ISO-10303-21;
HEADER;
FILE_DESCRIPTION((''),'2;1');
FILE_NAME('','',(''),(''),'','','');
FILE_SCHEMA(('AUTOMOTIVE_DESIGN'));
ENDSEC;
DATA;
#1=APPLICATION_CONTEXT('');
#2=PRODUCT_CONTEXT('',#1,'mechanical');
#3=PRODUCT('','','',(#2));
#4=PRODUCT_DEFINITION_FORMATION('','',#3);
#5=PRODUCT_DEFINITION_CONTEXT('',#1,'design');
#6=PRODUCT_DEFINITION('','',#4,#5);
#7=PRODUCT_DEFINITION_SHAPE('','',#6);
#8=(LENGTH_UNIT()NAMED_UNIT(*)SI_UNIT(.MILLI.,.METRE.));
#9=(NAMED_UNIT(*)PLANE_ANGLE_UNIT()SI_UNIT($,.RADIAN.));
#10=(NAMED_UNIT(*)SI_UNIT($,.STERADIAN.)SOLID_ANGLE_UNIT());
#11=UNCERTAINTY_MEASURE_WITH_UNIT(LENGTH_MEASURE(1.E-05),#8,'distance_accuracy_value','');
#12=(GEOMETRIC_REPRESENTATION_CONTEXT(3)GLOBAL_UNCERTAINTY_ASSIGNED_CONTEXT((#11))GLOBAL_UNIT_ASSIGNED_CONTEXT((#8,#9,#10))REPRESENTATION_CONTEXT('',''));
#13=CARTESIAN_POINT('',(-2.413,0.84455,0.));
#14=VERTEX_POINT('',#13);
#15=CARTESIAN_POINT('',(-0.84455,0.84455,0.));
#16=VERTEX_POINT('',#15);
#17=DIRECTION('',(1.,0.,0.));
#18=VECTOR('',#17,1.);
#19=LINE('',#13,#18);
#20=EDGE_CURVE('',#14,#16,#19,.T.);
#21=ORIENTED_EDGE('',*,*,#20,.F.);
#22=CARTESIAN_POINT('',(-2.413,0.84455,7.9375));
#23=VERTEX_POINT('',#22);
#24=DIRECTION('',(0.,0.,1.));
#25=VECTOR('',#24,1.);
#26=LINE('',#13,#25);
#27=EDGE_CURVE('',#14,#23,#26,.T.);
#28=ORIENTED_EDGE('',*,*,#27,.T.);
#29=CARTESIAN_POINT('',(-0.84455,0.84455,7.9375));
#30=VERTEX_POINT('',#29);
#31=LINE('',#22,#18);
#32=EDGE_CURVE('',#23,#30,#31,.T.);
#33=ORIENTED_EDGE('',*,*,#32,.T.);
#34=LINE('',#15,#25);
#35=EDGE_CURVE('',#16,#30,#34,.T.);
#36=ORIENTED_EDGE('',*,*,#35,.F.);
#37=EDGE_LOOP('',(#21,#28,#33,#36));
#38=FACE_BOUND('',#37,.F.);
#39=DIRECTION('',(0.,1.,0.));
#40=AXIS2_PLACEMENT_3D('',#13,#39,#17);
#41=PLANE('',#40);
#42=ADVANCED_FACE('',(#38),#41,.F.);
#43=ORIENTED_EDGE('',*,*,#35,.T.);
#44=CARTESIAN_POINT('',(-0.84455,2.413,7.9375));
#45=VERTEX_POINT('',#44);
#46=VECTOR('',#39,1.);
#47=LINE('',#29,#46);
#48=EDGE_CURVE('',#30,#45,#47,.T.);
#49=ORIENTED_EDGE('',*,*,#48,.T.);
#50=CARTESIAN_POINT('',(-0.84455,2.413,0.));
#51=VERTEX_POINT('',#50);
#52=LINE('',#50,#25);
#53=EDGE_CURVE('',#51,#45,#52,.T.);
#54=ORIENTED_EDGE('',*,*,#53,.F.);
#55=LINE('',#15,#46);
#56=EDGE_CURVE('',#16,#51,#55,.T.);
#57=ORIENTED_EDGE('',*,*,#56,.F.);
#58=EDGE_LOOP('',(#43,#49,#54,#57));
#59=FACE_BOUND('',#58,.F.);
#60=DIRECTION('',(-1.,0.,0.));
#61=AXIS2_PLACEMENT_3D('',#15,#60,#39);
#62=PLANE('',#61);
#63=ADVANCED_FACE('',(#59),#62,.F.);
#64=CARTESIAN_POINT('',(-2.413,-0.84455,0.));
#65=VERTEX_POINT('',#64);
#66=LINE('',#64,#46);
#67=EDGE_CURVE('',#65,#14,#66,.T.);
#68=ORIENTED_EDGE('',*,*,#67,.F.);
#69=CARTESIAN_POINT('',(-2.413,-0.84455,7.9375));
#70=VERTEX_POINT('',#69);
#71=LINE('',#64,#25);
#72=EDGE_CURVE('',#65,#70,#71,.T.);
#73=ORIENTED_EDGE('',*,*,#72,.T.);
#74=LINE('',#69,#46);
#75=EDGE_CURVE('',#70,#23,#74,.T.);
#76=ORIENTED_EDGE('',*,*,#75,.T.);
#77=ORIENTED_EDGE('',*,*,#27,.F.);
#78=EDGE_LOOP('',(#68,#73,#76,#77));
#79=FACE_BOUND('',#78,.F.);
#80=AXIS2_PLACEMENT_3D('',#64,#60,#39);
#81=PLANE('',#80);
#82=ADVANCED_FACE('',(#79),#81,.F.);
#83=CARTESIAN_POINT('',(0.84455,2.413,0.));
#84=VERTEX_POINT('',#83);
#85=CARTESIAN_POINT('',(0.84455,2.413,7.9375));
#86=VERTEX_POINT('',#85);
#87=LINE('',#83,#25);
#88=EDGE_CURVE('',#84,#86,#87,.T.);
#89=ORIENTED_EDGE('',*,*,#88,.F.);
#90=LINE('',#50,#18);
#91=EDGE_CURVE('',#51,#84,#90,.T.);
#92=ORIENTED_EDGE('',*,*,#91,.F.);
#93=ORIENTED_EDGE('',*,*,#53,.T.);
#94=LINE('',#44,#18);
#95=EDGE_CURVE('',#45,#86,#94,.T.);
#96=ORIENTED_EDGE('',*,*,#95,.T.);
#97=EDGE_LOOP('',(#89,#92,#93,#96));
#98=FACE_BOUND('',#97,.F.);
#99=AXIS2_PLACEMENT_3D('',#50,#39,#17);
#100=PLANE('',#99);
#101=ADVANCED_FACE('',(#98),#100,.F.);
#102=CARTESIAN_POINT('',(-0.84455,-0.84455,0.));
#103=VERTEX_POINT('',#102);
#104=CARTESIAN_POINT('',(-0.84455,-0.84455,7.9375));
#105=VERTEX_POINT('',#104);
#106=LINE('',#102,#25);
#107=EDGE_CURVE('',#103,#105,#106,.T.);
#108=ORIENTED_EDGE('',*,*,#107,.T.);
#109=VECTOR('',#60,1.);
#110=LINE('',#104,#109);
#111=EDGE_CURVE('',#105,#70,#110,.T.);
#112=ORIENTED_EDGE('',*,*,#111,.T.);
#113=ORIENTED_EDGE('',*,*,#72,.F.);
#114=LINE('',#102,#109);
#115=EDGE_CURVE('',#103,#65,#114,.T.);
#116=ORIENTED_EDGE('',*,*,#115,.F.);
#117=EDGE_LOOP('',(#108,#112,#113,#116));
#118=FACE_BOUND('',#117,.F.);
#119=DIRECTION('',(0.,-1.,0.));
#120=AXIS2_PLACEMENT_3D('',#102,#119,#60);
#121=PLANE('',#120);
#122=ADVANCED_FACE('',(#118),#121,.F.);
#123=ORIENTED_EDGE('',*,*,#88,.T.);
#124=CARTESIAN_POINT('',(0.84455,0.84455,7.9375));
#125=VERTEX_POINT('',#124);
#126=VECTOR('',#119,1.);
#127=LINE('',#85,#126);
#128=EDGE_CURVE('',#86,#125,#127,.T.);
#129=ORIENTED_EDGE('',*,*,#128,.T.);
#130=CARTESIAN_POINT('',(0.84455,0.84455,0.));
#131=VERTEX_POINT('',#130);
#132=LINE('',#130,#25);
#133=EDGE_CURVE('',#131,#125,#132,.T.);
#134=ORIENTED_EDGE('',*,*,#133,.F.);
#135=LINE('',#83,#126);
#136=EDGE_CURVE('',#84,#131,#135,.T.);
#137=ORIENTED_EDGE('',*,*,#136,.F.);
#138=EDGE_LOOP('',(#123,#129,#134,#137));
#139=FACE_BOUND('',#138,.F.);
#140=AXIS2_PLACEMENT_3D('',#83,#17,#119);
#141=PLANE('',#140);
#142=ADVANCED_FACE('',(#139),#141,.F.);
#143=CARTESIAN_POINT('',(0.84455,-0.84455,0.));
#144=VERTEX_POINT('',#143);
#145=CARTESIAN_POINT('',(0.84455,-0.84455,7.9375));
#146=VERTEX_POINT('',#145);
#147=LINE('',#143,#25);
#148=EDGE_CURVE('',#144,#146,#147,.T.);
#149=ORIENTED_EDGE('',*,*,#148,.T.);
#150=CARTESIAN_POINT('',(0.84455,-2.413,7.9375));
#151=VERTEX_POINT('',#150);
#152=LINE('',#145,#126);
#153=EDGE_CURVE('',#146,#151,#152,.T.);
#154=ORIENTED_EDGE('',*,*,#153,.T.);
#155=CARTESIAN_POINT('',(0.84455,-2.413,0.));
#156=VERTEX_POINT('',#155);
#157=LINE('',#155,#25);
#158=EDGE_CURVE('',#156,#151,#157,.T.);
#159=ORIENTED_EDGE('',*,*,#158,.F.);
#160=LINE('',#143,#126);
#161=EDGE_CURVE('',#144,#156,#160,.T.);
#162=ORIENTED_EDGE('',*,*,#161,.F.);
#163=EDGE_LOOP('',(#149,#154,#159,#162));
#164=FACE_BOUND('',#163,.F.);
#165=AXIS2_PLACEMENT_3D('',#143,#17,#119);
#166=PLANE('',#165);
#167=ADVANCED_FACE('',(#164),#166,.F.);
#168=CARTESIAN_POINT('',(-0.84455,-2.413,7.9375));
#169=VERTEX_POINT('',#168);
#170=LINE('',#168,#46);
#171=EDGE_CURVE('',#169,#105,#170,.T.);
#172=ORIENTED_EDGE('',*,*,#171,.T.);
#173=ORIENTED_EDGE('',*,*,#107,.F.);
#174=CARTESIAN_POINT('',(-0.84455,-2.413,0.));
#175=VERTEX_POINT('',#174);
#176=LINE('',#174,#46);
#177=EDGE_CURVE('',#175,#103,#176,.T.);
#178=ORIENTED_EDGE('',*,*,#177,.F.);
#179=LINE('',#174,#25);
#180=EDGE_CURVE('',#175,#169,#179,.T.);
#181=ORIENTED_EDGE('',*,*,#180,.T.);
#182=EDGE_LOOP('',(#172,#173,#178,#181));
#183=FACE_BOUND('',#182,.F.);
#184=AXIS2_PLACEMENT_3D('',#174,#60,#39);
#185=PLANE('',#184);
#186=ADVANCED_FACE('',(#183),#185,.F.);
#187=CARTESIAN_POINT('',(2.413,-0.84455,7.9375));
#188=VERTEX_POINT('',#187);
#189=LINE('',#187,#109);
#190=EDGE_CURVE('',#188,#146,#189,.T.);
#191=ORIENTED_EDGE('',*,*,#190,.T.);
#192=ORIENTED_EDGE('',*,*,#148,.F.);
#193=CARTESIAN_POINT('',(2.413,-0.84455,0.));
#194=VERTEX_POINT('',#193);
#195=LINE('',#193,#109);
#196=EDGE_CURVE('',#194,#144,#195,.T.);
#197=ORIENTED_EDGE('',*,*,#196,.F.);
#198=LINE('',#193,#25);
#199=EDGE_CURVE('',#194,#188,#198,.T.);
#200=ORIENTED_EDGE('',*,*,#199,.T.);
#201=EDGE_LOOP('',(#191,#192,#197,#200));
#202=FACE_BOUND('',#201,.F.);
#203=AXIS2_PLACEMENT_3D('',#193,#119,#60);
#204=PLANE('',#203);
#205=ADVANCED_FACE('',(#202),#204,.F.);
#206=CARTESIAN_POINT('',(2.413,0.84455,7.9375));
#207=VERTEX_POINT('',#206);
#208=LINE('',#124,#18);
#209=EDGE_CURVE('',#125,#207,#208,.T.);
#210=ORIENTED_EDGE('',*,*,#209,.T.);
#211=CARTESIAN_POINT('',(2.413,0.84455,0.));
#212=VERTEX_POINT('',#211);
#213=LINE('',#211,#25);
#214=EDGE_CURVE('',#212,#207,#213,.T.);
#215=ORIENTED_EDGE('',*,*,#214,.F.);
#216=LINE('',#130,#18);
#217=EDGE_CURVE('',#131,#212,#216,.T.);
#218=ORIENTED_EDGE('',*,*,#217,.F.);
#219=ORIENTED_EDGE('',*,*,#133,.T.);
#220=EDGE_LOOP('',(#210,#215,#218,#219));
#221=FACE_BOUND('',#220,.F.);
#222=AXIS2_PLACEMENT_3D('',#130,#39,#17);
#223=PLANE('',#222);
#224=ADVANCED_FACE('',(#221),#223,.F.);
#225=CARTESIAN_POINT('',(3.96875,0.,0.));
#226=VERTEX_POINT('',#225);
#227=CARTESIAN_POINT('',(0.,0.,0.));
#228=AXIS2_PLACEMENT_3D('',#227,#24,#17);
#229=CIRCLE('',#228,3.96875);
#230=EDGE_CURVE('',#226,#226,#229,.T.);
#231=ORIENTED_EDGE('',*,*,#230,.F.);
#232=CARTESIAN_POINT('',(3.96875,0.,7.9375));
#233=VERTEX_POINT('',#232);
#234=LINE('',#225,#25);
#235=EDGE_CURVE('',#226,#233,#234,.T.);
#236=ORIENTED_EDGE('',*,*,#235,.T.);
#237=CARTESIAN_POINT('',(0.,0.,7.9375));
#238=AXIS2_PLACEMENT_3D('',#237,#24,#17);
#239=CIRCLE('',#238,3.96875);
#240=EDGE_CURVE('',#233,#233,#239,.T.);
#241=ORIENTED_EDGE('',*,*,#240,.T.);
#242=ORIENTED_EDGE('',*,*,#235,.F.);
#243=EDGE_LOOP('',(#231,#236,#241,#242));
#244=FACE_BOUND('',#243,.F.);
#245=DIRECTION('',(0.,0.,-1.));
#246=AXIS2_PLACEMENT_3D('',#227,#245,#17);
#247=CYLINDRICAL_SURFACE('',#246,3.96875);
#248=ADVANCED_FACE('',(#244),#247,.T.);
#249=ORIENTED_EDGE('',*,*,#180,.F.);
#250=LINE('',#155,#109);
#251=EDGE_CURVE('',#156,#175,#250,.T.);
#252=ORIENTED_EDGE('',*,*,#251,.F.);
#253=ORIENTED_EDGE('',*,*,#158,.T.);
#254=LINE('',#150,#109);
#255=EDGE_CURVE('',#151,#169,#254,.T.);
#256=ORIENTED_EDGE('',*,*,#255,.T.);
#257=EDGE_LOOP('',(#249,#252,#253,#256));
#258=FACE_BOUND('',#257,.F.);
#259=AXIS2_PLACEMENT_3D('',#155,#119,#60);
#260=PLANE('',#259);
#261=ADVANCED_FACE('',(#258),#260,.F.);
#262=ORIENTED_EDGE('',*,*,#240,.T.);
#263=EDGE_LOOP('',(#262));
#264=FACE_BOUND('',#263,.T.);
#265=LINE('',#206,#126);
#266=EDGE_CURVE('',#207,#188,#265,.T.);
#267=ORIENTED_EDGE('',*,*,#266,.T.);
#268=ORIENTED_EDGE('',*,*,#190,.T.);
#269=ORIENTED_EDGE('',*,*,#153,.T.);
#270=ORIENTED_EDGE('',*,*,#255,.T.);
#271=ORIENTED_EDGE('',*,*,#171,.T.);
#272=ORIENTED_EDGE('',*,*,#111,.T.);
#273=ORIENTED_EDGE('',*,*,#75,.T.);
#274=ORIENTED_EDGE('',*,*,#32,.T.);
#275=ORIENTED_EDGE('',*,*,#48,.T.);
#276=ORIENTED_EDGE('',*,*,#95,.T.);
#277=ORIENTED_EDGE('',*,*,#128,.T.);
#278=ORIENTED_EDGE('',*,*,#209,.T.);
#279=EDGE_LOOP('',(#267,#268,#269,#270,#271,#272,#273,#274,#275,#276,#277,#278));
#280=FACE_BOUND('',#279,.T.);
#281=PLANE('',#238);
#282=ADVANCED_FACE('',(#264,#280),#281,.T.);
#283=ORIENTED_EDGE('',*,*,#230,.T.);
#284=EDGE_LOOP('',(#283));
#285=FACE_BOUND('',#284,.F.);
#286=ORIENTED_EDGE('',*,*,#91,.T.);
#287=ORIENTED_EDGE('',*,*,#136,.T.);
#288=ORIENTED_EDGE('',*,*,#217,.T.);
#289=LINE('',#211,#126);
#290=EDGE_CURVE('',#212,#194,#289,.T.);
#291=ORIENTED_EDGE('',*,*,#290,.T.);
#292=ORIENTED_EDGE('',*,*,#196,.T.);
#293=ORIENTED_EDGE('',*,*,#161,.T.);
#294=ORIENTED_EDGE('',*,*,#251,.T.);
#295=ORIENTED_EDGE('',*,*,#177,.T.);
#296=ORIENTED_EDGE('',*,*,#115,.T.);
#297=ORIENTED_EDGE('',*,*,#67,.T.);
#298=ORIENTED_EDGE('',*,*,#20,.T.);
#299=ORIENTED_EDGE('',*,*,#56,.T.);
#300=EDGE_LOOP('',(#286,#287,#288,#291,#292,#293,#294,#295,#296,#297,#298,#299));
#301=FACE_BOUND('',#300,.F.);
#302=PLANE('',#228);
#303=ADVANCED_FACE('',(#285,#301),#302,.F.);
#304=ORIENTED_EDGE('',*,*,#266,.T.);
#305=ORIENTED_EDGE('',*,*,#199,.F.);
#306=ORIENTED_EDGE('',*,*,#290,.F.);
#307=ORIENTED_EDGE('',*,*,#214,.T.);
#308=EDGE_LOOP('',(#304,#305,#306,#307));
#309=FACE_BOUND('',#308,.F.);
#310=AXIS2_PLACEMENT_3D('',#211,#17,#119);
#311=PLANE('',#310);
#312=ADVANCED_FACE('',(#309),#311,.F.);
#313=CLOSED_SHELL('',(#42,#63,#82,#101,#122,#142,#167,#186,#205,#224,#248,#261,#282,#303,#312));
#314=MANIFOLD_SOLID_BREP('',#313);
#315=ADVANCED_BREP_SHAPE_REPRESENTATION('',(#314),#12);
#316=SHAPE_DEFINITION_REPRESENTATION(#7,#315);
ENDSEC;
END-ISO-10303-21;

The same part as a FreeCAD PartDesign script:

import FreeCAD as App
import Part
import Sketcher
Q = App.Units.Quantity


def add_polygon(sketch, points):
    """Adds a closed chain of lines whose ends are joined by coincident constraints."""
    first, n = sketch.GeometryCount, len(points)
    for a, b in zip(points, points[1:] + points[:1]):
        sketch.addGeometry(Part.LineSegment(App.Vector(*a, 0), App.Vector(*b, 0)), False)
    for i in range(n):
        sketch.addConstraint(Sketcher.Constraint("Coincident", first + i, 2, first + (i + 1) % n, 1))

doc = App.newDocument("Part")
body = doc.addObject("PartDesign::Body", "Body")

sketch1 = doc.addObject("Sketcher::SketchObject", "Sketch")
body.addObject(sketch1)
sketch1.AttachmentSupport = (doc.XY_Plane, [""])
sketch1.MapMode = "FlatFace"
sketch1.addGeometry(Part.Circle(App.Vector(0, 0, 0), App.Vector(0, 0, 1), 3.96875), False)
add_polygon(sketch1, [(0.84455, 2.413), (0.84455, 0.84455), (2.413, 0.84455), (2.413, -0.84455), (0.84455, -0.84455), (0.84455, -2.413), (-0.84455, -2.413), (-0.84455, -0.84455), (-2.413, -0.84455), (-2.413, 0.84455), (-0.84455, 0.84455), (-0.84455, 2.413)])
sketch1.addConstraint([
    Sketcher.Constraint("Vertical", 1),
    Sketcher.Constraint("Horizontal", 2),
    Sketcher.Constraint("Vertical", 3),
    Sketcher.Constraint("Horizontal", 4),
    Sketcher.Constraint("Vertical", 5),
    Sketcher.Constraint("Horizontal", 6),
    Sketcher.Constraint("Vertical", 7),
    Sketcher.Constraint("Horizontal", 8),
    Sketcher.Constraint("Vertical", 9),
    Sketcher.Constraint("Horizontal", 10),
    Sketcher.Constraint("Vertical", 11),
    Sketcher.Constraint("Horizontal", 12),
    Sketcher.Constraint("Coincident", 0, 3, -1, 1),
    Sketcher.Constraint("Symmetric", 1, 2, 7, 2, -1, 1),
    Sketcher.Constraint("Symmetric", 3, 2, 9, 2, -1, 1),
    Sketcher.Constraint("Symmetric", 5, 2, 11, 2, -1, 1),
    Sketcher.Constraint("Symmetric", 4, 2, 7, 2, -2),
    Sketcher.Constraint("Equal", 10, 1),
    Sketcher.Constraint("Equal", 12, 3),
    Sketcher.Constraint("Diameter", 0, Q("0.3125 in")),
    Sketcher.Constraint("DistanceX", 6, 2, 6, 1, Q("0.0665 in")),
    Sketcher.Constraint("DistanceX", -1, 1, 2, 2, Q("0.095 in")),
])
pad1 = doc.addObject("PartDesign::Pad", "Pad")
body.addObject(pad1)
pad1.Profile = sketch1
pad1.Length = Q("0.3125 in")

doc.recompute()
